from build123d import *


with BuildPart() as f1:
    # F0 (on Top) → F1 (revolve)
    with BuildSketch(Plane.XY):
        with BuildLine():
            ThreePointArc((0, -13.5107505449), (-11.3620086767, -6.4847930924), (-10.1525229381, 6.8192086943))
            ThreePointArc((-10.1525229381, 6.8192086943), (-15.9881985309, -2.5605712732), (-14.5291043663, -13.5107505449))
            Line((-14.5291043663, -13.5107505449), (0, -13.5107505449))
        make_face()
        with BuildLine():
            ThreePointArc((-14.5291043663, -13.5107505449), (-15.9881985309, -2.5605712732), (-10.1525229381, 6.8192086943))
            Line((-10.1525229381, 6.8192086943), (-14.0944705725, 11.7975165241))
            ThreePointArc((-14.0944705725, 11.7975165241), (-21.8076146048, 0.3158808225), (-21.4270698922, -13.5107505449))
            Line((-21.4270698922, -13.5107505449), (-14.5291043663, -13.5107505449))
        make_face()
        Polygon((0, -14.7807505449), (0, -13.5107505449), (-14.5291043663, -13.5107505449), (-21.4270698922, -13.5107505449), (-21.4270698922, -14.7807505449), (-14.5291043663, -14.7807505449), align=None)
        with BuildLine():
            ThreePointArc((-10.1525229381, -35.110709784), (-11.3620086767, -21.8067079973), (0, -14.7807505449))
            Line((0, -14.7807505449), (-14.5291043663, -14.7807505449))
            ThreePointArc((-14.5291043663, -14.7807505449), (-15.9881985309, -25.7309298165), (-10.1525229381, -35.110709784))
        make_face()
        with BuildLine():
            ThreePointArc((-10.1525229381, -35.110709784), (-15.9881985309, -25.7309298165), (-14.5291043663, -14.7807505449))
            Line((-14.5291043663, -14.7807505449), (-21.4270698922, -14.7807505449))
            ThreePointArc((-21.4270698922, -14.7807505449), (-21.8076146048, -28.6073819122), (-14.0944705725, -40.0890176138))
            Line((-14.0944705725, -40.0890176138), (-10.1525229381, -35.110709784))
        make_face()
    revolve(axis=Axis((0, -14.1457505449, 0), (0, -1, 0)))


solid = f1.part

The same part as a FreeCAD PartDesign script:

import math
import FreeCAD as App
import Part
import Sketcher
Q = App.Units.Quantity

doc = App.newDocument("Part")
body = doc.addObject("PartDesign::Body", "Body")

# Sketch on XY plane
sketch1 = body.newObject("Sketcher::SketchObject", "Sketch")
sketch1.AttachmentSupport = (doc.getObject("XY_Plane"), [""])
sketch1.MapMode = "FlatFace"
sketch1.addGeometry(Part.ArcOfCircle(Part.Circle(App.Vector(0, -0.8, 0), App.Vector(0, 0, 1), 12.7), math.radians(143), math.radians(270)), False)
sketch1.addGeometry(Part.LineSegment(App.Vector(-10.2, 6.8, 0), App.Vector(-14.1, 11.8, 0)), False)
sketch1.addGeometry(Part.ArcOfCircle(Part.Circle(App.Vector(0, -6, 0), App.Vector(0, 0, 1), 22.7), math.radians(128), math.radians(199)), False)
sketch1.addGeometry(Part.LineSegment(App.Vector(-21.4, -13.5, 0), App.Vector(-21.4, -14.8, 0)), False)
sketch1.addGeometry(Part.ArcOfCircle(Part.Circle(App.Vector(0, -22.3, 0), App.Vector(0, 0, 1), 22.7), math.radians(161), math.radians(232)), False)
sketch1.addGeometry(Part.LineSegment(App.Vector(-14.1, -40.1, 0), App.Vector(-10.2, -35.1, 0)), False)
sketch1.addGeometry(Part.ArcOfCircle(Part.Circle(App.Vector(0, -27.5, 0), App.Vector(0, 0, 1), 12.7), math.radians(90), math.radians(217)), False)
sketch1.addGeometry(Part.LineSegment(App.Vector(0, -14.8, 0), App.Vector(0, -13.5, 0)), False)
sketch1.addConstraint(Sketcher.Constraint("Coincident", 0, 1, 1, 1))
sketch1.addConstraint(Sketcher.Constraint("Coincident", 1, 2, 2, 1))
sketch1.addConstraint(Sketcher.Constraint("Coincident", 2, 2, 3, 1))
sketch1.addConstraint(Sketcher.Constraint("Coincident", 3, 2, 4, 1))
sketch1.addConstraint(Sketcher.Constraint("Coincident", 4, 2, 5, 1))
sketch1.addConstraint(Sketcher.Constraint("Coincident", 5, 2, 6, 2))
sketch1.addConstraint(Sketcher.Constraint("Coincident", 6, 1, 7, 1))
sketch1.addConstraint(Sketcher.Constraint("Coincident", 7, 2, 0, 2))
sketch1.addConstraint(Sketcher.Constraint("Vertical", 3))
sketch1.addConstraint(Sketcher.Constraint("Vertical", 7))
sketch1.addConstraint(Sketcher.Constraint("Equal", 2, 4))
sketch1.addConstraint(Sketcher.Constraint("Equal", 0, 6))
sketch1.addConstraint(Sketcher.Constraint("PointOnObject", 0, 3, -2))
sketch1.addConstraint(Sketcher.Constraint("PointOnObject", 2, 3, -2))
sketch1.addConstraint(Sketcher.Constraint("PointOnObject", 4, 3, -2))
sketch1.addConstraint(Sketcher.Constraint("PointOnObject", 6, 3, -2))
sketch1.addConstraint(Sketcher.Constraint("PointOnObject", 6, 1, -2))
sketch1.addConstraint(Sketcher.Constraint("Horizontal", 3, 2, 6, 1))
sketch1.addConstraint(Sketcher.Constraint("Horizontal", 2, 2, 7, 2))
sketch1.addConstraint(Sketcher.Constraint("Vertical", 1, 2, 4, 2))
sketch1.addConstraint(Sketcher.Constraint("Vertical", 0, 1, 5, 2))
sketch1.addConstraint(Sketcher.Constraint("Radius", 0, Q("0.5 in")))
sketch1.addConstraint(Sketcher.Constraint("DistanceY", 3, 2, 3, 1, Q("0.05 in")))
sketch1.addConstraint(Sketcher.Constraint("Distance", 1, Q("0.25 in")))
sketch1.addConstraint(Sketcher.Constraint("Radius", 2, Q("22.704484 mm")))
sketch1.addConstraint(Sketcher.Constraint("DistanceX", 3, 2, 4, 2, Q("7.332599 mm")))
sketch1.addConstraint(Sketcher.Constraint("DistanceY", 0, 3, -1, 1, Q("0.810751 mm")))
sketch1.addConstraint(Sketcher.Constraint("DistanceY", 2, 3, -1, 1, Q("6.00247 mm")))
revolution = body.newObject("PartDesign::Revolution", "Revolution")
revolution.Profile = sketch1
revolution.ReferenceAxis = (sketch1, ["V_Axis"])
revolution.Angle = 360

doc.recompute()
